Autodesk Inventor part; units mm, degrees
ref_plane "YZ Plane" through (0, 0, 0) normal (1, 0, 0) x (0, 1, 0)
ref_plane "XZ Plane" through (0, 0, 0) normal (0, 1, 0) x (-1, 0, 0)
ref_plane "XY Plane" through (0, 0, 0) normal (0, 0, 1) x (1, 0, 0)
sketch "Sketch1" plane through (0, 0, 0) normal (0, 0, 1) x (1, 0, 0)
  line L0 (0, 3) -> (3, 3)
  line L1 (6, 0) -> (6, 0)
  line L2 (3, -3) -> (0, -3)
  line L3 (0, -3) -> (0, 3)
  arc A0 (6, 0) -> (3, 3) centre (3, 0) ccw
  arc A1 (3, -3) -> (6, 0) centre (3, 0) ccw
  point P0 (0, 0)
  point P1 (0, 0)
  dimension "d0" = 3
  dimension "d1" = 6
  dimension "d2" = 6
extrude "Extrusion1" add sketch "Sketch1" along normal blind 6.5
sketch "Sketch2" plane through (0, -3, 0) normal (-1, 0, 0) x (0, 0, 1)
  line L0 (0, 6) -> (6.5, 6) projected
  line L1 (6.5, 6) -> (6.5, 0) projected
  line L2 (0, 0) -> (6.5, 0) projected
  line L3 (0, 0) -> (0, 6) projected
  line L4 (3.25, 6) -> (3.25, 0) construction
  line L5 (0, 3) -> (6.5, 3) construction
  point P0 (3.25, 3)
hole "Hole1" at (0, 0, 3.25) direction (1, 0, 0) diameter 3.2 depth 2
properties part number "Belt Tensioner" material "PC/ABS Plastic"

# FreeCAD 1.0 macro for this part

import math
import FreeCAD as App
import Part
import Sketcher
from FreeCAD import Vector
Q = App.Units.Quantity

doc = App.newDocument("Part")
body = doc.addObject("PartDesign::Body", "Body")

# Sketch on XY plane
sketch1 = body.newObject("Sketcher::SketchObject", "Sketch")
sketch1.AttachmentSupport = (doc.getObject("XY_Plane"), [""])
sketch1.MapMode = "FlatFace"
sketch1.addGeometry([
    Part.LineSegment(Vector(3, 3, 0), Vector(0, 3, 0)),
    Part.LineSegment(Vector(0, 3, 0), Vector(0, -3, 0)),
    Part.LineSegment(Vector(0, -3, 0), Vector(3, -3, 0)),
    Part.ArcOfCircle(Part.Circle(Vector(3, 0, 0), Vector(0, 0, 1), 3), math.radians(-90), math.radians(90)),
], False)
sketch1.addConstraint([
    Sketcher.Constraint("Coincident", 0, 2, 1, 1),
    Sketcher.Constraint("Coincident", 1, 2, 2, 1),
    Sketcher.Constraint("Tangent", 2, 2, 3, 1),
    Sketcher.Constraint("Tangent", 3, 2, 0, 1),
    Sketcher.Constraint("Horizontal", 0),
    Sketcher.Constraint("Vertical", 1),
    Sketcher.Constraint("Horizontal", 2),
    Sketcher.Constraint("Symmetric", 0, 2, 1, 2, -1, 1),
    Sketcher.Constraint("Radius", 3, Q("3 mm")),
    Sketcher.Constraint("DistanceX", 0, 2, 0, 1, Q("3 mm")),
])
pad1 = body.newObject("PartDesign::Pad", "Pad")
pad1.Profile = sketch1
pad1.Length = 6.5

# Sketch on YZ plane
sketch2 = body.newObject("Sketcher::SketchObject", "Sketch001")
sketch2.AttachmentSupport = (doc.getObject("YZ_Plane"), [""])
sketch2.MapMode = "FlatFace"
sketch2.addGeometry(Part.Circle(Vector(0, 3.2, 0), Vector(0, 0, 1), 1.6), False)
sketch2.addConstraint([
    Sketcher.Constraint("PointOnObject", 0, 3, -2),
    Sketcher.Constraint("Diameter", 0, Q("3.2 mm")),
    Sketcher.Constraint("DistanceY", -1, 1, 0, 3, Q("3.25 mm")),
])
doc.recompute()
hole = body.newObject("PartDesign::Hole", "Hole")
hole.Profile = sketch2
hole.ThreadType = "None"
hole.Diameter = 3.2
hole.DepthType = "Dimension"
hole.Depth = 2
hole.DrillPoint = "Flat"
hole.Reversed = True

doc.recompute()
